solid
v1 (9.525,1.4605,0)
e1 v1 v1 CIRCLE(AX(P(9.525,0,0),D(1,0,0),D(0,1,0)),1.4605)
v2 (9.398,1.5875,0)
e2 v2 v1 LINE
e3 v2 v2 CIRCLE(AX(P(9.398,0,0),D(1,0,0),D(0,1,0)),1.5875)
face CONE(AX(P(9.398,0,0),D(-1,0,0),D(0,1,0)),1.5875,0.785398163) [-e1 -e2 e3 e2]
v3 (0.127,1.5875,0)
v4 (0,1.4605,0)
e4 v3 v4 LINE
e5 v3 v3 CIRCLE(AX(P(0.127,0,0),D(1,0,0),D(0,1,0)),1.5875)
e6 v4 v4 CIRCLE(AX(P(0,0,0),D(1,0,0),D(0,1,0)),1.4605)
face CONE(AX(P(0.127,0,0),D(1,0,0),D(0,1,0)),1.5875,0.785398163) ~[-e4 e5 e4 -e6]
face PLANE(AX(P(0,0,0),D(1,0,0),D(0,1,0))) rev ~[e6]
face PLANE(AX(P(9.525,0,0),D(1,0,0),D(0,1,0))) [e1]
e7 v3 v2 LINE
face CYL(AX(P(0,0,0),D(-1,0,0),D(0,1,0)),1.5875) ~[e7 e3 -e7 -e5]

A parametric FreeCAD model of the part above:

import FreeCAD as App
import Part
import Sketcher

V = App.Vector
Q = App.Units.Quantity


def edges_at(feature, points):
    """Names of the edges that pass closest to the given points."""
    edges = feature.Shape.Edges
    near = lambda p: min(range(len(edges)), key=lambda i: edges[i].distToShape(Part.Vertex(*p))[0])
    return sorted({f"Edge{near(p) + 1}" for p in points})

doc = App.newDocument("Part")
body = doc.addObject("PartDesign::Body", "Body")

sketch1 = body.newObject("Sketcher::SketchObject", "Sketch")
sketch1.AttachmentSupport = (doc.getObject("YZ_Plane"), [""])
sketch1.MapMode = "FlatFace"
sketch1.addGeometry(Part.Circle(V(0, 0, 0), V(0, 0, 1), 1.5875), False)
sketch1.addConstraint(Sketcher.Constraint("Coincident", 0, 3, -1, 1))
sketch1.addConstraint(Sketcher.Constraint("Diameter", 0, Q("0.125 in")))
pad1 = body.newObject("PartDesign::Pad", "Pad")
pad1.Profile = sketch1
pad1.Length = Q("0.375 in")
doc.recompute()

chamfer = body.newObject("PartDesign::Chamfer", "Chamfer")
chamfer.Base = (pad1, edges_at(pad1, [(9.525, -1.587, 0)]))
chamfer.Size = Q("0.005 in")
doc.recompute()

chamfer2 = body.newObject("PartDesign::Chamfer", "Chamfer001")
chamfer2.Base = (chamfer, edges_at(chamfer, [(0, -1.587, 0)]))
chamfer2.Size = Q("0.005 in")

doc.recompute()
